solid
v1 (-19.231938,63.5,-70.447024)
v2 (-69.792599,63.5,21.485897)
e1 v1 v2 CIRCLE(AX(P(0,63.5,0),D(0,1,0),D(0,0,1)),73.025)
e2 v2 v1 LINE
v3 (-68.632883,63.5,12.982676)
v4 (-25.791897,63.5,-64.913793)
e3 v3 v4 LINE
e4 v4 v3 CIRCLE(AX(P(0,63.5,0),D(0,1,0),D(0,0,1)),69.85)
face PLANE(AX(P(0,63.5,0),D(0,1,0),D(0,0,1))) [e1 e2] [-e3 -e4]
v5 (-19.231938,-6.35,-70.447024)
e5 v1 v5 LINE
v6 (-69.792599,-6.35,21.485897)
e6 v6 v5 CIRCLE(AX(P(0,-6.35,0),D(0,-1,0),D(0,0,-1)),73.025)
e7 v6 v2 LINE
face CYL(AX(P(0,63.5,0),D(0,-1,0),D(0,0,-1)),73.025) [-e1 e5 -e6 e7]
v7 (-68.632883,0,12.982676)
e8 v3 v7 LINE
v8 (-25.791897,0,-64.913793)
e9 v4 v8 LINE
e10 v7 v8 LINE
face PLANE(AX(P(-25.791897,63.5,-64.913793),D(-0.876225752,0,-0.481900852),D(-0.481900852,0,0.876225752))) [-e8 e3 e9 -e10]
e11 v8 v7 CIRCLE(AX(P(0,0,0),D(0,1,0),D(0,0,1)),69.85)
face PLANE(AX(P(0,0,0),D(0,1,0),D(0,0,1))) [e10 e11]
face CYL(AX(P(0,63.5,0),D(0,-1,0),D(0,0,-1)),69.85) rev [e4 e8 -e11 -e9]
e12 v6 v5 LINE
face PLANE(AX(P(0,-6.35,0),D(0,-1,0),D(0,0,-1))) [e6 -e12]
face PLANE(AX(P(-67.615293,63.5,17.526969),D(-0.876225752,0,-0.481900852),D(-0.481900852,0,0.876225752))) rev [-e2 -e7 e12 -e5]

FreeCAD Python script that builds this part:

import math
import FreeCAD as App
import Part
import Sketcher
Q = App.Units.Quantity


def add_polygon(sketch, points):
    """Adds a closed chain of lines whose ends are joined by coincident constraints."""
    first, n = sketch.GeometryCount, len(points)
    for a, b in zip(points, points[1:] + points[:1]):
        sketch.addGeometry(Part.LineSegment(App.Vector(*a, 0), App.Vector(*b, 0)), False)
    for i in range(n):
        sketch.addConstraint(Sketcher.Constraint("Coincident", first + i, 2, first + (i + 1) % n, 1))

doc = App.newDocument("Part")
body = doc.addObject("PartDesign::Body", "Body")

sketch1 = body.newObject("Sketcher::SketchObject", "Sketch")
sketch1.AttachmentSupport = (doc.getObject("XZ_Plane"), [""])
sketch1.MapMode = "FlatFace"
sketch1.addGeometry(Part.Circle(App.Vector(0, 0, 0), App.Vector(0, 0, 1), 73), False)
sketch1.addGeometry(Part.Circle(App.Vector(0, 0, 0), App.Vector(0, 0, 1), 70), False)
sketch1.addConstraint(Sketcher.Constraint("Coincident", 0, 3, -1, 1))
sketch1.addConstraint(Sketcher.Constraint("Coincident", 1, 3, -1, 1))
sketch1.addConstraint(Sketcher.Constraint("Diameter", 1, Q("5.5 in")))
sketch1.addConstraint(Sketcher.Constraint("Diameter", 0, Q("5.75 in")))
pad1 = body.newObject("PartDesign::Pad", "Pad")
pad1.Profile = sketch1
pad1.Length = Q("2.5 in")
pad1.Reversed = True

sketch2 = body.newObject("Sketcher::SketchObject", "Sketch001")
sketch2.AttachmentSupport = (doc.getObject("XZ_Plane"), [""])
sketch2.MapMode = "FlatFace"
sketch2.addGeometry(Part.Circle(App.Vector(0, 0, 0), App.Vector(0, 0, 1), 73), False)
sketch2.addConstraint(Sketcher.Constraint("Coincident", 0, 3, -1, 1))
sketch2.addConstraint(Sketcher.Constraint("Diameter", 0, Q("5.75 in")))
pad2 = body.newObject("PartDesign::Pad", "Pad001")
pad2.Profile = sketch2
pad2.Length = Q("0.25 in")

sketch3 = body.newObject("Sketcher::SketchObject", "Sketch002")
sketch3.AttachmentSupport = (doc.getObject("XZ_Plane"), [""])
sketch3.MapMode = "FlatFace"
sketch3.addGeometry(Part.LineSegment(App.Vector(-68, 18, 0), App.Vector(-21, -66, 0)), False)
sketch3.addGeometry(Part.ArcOfCircle(Part.Circle(App.Vector(0, 0, 0), App.Vector(0, 0, 1), 70), math.radians(165), math.radians(252)), False)
sketch3.addConstraint(Sketcher.Constraint("Coincident", 0, 1, 1, 1))
sketch3.addConstraint(Sketcher.Constraint("Coincident", 1, 2, 0, 2))
sketch3.addConstraint(Sketcher.Constraint("Coincident", 1, 3, -1, 1))
sketch3.addConstraint(Sketcher.Constraint("Radius", 1, Q("2.75 in")))
sketch3.addConstraint(Sketcher.Constraint("DistanceY", -1, 1, 0, 1, 17.526969))
sketch3.addConstraint(Sketcher.Constraint("DistanceX", 0, 1, 1, 2, 46.20605))
pad3 = body.newObject("PartDesign::Pad", "Pad002")
pad3.Profile = sketch3
pad3.Length = Q("2.5 in")
pad3.Reversed = True

sketch4 = body.newObject("Sketcher::SketchObject", "Sketch003")
sketch4.AttachmentSupport = (doc.getObject("XZ_Plane"), [""])
sketch4.MapMode = "FlatFace"
sketch4.AttachmentOffset = App.Placement(App.Vector(0, 0, -2.25 * 25.4), App.Rotation())
sketch4.addGeometry(Part.LineSegment(App.Vector(-69, 13, 0), App.Vector(-26, -65, 0)), False)
sketch4.addGeometry(Part.ArcOfCircle(Part.Circle(App.Vector(0, 0, 0), App.Vector(0, 0, 1), 70), math.radians(169), math.radians(248)), False)
sketch4.addConstraint(Sketcher.Constraint("Coincident", 0, 1, 1, 1))
sketch4.addConstraint(Sketcher.Constraint("Coincident", 1, 2, 0, 2))
sketch4.addConstraint(Sketcher.Constraint("Coincident", 1, 3, -1, 1))
sketch4.addConstraint(Sketcher.Constraint("Radius", 1, Q("2.75 in")))
sketch4.addConstraint(Sketcher.Constraint("Distance", 0, Q("3.5 in")))
sketch4.addConstraint(Sketcher.Constraint("DistanceY", 1, 2, 0, 1, 77.896469))
pocket1 = body.newObject("PartDesign::Pocket", "Pocket")
pocket1.Profile = sketch4
pocket1.Type = "TwoLengths"
pocket1.Length = Q("0.25 in")
pocket1.Length2 = Q("2.25 in")

sketch5 = body.newObject("Sketcher::SketchObject", "Sketch004")
sketch5.AttachmentSupport = (doc.getObject("XZ_Plane"), [""])
sketch5.MapMode = "FlatFace"
sketch5.AttachmentOffset = App.Placement(App.Vector(0, 0, -2.5 * 25.4), App.Rotation())
add_polygon(sketch5, [(-10, -87), (-73, 27), (-76, 73), (41, 94), (123, 34), (115, -66)])
sketch5.addConstraint(Sketcher.Constraint("DistanceY", 5, 2, 1, 2, Q("6.2833998 in")))
sketch5.addConstraint(Sketcher.Constraint("DistanceY", 0, 2, 2, 2, 67.372698))
sketch5.addConstraint(Sketcher.Constraint("Distance", 0, 129.56653))
sketch5.addConstraint(Sketcher.Constraint("Distance", 3, 101.366479))
sketch5.addConstraint(Sketcher.Constraint("Distance", 5, 126.900461))
sketch5.addConstraint(Sketcher.Constraint("DistanceX", 0, 2, -1, 1, 72.609629))
sketch5.addConstraint(Sketcher.Constraint("DistanceY", -1, 1, 0, 2, 26.608018))
sketch5.addConstraint(Sketcher.Constraint("DistanceX", -1, 1, 2, 2, 41.017949))
sketch5.addConstraint(Sketcher.Constraint("DistanceY", -1, 1, 3, 2, 33.748741))
sketch5.addConstraint(Sketcher.Constraint("DistanceX", 4, 2, 3, 2, 7.588808))
sketch5.addConstraint(Sketcher.Constraint("DistanceY", 4, 2, 2, 2, 159.786559))
sketch5.addConstraint(Sketcher.Constraint("DistanceX", 1, 2, 4, 2, 190.563349))
pocket2 = body.newObject("PartDesign::Pocket", "Pocket001")
pocket2.Profile = sketch5
pocket2.Length = Q("40 in")
pocket2.Reversed = True

doc.recompute()
